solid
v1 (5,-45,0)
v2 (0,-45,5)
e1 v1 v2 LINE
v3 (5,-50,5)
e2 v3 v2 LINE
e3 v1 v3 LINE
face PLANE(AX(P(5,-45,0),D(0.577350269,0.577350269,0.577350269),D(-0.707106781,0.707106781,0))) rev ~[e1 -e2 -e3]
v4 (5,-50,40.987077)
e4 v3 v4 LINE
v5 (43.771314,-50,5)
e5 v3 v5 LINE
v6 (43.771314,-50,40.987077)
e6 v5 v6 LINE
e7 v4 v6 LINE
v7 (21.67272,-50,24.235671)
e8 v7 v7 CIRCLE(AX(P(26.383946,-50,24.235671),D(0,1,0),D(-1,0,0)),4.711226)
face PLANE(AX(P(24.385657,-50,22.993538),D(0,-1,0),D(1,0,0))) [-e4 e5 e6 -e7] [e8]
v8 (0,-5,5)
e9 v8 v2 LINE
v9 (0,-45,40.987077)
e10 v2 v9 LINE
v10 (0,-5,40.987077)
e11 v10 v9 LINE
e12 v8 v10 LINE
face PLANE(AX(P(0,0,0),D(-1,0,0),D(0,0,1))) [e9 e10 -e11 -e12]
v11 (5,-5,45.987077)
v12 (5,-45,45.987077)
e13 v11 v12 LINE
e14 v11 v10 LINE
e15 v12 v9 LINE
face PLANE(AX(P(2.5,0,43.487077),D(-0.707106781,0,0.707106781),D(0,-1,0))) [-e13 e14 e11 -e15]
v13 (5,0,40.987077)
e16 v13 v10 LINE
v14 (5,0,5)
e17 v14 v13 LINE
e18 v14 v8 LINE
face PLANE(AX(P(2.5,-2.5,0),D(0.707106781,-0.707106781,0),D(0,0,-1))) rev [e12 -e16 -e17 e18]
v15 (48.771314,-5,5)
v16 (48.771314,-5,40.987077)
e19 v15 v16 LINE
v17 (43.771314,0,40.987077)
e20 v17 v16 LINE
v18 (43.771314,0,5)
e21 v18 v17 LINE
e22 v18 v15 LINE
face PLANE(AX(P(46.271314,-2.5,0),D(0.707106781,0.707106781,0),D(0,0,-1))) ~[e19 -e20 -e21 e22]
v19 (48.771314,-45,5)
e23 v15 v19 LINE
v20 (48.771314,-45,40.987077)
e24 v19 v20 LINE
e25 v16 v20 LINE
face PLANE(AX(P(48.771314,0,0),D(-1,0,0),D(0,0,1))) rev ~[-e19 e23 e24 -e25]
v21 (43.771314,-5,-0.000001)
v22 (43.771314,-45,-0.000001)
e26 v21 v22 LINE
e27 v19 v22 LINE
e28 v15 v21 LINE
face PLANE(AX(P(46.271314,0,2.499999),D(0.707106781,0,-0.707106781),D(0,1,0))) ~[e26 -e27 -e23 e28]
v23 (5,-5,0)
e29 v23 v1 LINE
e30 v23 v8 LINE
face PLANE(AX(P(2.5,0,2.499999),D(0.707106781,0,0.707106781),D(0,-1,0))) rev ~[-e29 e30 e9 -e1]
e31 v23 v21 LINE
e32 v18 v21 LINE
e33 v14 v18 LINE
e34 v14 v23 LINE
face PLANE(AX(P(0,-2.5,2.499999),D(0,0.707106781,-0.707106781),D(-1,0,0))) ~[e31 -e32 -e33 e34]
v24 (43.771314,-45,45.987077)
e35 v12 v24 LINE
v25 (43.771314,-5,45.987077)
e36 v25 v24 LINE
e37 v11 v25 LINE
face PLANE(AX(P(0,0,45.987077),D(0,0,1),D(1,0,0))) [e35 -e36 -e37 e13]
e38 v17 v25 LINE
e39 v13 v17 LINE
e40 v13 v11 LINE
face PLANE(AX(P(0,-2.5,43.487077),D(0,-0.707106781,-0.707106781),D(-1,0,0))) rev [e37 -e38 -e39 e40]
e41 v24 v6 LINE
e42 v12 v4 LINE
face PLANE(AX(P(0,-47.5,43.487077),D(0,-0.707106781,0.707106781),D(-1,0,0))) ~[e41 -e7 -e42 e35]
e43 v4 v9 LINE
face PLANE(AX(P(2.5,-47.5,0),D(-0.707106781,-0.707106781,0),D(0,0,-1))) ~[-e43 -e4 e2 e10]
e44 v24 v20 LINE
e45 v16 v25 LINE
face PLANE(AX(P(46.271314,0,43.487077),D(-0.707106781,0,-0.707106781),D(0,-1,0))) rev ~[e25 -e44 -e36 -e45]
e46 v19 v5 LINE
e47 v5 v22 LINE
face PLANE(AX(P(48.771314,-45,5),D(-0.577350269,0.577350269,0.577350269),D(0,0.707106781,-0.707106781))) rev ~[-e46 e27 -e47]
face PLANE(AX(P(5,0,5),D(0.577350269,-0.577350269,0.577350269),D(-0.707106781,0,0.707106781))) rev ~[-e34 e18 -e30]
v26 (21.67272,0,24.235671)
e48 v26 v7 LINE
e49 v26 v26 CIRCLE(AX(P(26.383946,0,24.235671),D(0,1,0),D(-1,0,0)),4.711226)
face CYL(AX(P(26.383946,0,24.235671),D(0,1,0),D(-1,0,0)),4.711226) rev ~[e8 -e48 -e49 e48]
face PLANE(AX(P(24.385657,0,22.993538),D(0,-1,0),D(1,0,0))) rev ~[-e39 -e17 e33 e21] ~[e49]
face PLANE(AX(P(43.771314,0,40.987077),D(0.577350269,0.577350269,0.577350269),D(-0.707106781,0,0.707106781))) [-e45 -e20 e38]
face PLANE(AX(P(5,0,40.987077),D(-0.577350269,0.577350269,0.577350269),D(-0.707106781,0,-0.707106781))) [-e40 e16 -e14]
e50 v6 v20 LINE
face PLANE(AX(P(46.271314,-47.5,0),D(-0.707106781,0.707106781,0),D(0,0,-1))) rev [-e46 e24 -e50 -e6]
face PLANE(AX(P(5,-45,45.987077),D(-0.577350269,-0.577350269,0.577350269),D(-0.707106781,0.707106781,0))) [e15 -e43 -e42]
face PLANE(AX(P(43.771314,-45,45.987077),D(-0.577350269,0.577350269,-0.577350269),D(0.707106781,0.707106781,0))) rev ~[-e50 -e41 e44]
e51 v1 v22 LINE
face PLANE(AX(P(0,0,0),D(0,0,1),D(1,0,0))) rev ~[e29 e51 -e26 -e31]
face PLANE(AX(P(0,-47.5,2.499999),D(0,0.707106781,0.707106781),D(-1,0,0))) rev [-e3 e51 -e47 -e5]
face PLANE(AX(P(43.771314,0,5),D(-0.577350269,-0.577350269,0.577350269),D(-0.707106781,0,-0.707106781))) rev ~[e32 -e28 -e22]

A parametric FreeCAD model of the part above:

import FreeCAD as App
import Part
import Sketcher
from FreeCAD import Vector
Q = App.Units.Quantity

doc = App.newDocument("Part")
body = doc.addObject("PartDesign::Body", "Body")

# Sketch on XZ plane
sketch1 = body.newObject("Sketcher::SketchObject", "Sketch")
sketch1.AttachmentSupport = (doc.getObject("XZ_Plane"), [""])
sketch1.MapMode = "FlatFace"
sketch1.addGeometry(Part.LineSegment(Vector(0, 46, 0), Vector(0, 0, 0)), False)
sketch1.addGeometry(Part.LineSegment(Vector(0, 0, 0), Vector(49, 0, 0)), False)
sketch1.addGeometry(Part.LineSegment(Vector(49, 0, 0), Vector(49, 46, 0)), False)
sketch1.addGeometry(Part.LineSegment(Vector(49, 46, 0), Vector(0, 46, 0)), False)
sketch1.addConstraint(Sketcher.Constraint("Coincident", 0, 2, 1, 1))
sketch1.addConstraint(Sketcher.Constraint("Coincident", 1, 2, 2, 1))
sketch1.addConstraint(Sketcher.Constraint("Coincident", 2, 2, 3, 1))
sketch1.addConstraint(Sketcher.Constraint("Coincident", 3, 2, 0, 1))
sketch1.addConstraint(Sketcher.Constraint("Vertical", 0))
sketch1.addConstraint(Sketcher.Constraint("Horizontal", 1))
sketch1.addConstraint(Sketcher.Constraint("Vertical", 2))
sketch1.addConstraint(Sketcher.Constraint("Horizontal", 3))
sketch1.addConstraint(Sketcher.Constraint("Coincident", 0, 2, -1, 1))
sketch1.addConstraint(Sketcher.Constraint("DistanceX", 1, 1, 1, 2, Q("48.771314 mm")))
sketch1.addConstraint(Sketcher.Constraint("DistanceY", 0, 2, 0, 1, Q("45.987077 mm")))
pad1 = body.newObject("PartDesign::Pad", "Pad")
pad1.Profile = sketch1
pad1.Length = 50
doc.recompute()

chamfer = body.newObject("PartDesign::Chamfer", "Chamfer")
chamfer.Base = (pad1, ["Edge1"])
chamfer.UseAllEdges = True
chamfer.Size = 5

# Sketch on XZ plane
sketch2 = body.newObject("Sketcher::SketchObject", "Sketch001")
sketch2.AttachmentSupport = (doc.getObject("XZ_Plane"), [""])
sketch2.MapMode = "FlatFace"
sketch2.addGeometry(Part.Circle(Vector(26.4, 24.2, 0), Vector(0, 0, 1), 4.7), False)
sketch2.addConstraint(Sketcher.Constraint("Diameter", 0, Q("9.422452 mm")))
sketch2.addConstraint(Sketcher.Constraint("DistanceY", -1, 1, 0, 3, Q("24.235671 mm")))
sketch2.addConstraint(Sketcher.Constraint("DistanceX", -1, 1, 0, 3, Q("26.383946 mm")))
pocket1 = body.newObject("PartDesign::Pocket", "Pocket")
pocket1.Profile = sketch2
pocket1.Type = "ThroughAll"
pocket1.Reversed = True

doc.recompute()
